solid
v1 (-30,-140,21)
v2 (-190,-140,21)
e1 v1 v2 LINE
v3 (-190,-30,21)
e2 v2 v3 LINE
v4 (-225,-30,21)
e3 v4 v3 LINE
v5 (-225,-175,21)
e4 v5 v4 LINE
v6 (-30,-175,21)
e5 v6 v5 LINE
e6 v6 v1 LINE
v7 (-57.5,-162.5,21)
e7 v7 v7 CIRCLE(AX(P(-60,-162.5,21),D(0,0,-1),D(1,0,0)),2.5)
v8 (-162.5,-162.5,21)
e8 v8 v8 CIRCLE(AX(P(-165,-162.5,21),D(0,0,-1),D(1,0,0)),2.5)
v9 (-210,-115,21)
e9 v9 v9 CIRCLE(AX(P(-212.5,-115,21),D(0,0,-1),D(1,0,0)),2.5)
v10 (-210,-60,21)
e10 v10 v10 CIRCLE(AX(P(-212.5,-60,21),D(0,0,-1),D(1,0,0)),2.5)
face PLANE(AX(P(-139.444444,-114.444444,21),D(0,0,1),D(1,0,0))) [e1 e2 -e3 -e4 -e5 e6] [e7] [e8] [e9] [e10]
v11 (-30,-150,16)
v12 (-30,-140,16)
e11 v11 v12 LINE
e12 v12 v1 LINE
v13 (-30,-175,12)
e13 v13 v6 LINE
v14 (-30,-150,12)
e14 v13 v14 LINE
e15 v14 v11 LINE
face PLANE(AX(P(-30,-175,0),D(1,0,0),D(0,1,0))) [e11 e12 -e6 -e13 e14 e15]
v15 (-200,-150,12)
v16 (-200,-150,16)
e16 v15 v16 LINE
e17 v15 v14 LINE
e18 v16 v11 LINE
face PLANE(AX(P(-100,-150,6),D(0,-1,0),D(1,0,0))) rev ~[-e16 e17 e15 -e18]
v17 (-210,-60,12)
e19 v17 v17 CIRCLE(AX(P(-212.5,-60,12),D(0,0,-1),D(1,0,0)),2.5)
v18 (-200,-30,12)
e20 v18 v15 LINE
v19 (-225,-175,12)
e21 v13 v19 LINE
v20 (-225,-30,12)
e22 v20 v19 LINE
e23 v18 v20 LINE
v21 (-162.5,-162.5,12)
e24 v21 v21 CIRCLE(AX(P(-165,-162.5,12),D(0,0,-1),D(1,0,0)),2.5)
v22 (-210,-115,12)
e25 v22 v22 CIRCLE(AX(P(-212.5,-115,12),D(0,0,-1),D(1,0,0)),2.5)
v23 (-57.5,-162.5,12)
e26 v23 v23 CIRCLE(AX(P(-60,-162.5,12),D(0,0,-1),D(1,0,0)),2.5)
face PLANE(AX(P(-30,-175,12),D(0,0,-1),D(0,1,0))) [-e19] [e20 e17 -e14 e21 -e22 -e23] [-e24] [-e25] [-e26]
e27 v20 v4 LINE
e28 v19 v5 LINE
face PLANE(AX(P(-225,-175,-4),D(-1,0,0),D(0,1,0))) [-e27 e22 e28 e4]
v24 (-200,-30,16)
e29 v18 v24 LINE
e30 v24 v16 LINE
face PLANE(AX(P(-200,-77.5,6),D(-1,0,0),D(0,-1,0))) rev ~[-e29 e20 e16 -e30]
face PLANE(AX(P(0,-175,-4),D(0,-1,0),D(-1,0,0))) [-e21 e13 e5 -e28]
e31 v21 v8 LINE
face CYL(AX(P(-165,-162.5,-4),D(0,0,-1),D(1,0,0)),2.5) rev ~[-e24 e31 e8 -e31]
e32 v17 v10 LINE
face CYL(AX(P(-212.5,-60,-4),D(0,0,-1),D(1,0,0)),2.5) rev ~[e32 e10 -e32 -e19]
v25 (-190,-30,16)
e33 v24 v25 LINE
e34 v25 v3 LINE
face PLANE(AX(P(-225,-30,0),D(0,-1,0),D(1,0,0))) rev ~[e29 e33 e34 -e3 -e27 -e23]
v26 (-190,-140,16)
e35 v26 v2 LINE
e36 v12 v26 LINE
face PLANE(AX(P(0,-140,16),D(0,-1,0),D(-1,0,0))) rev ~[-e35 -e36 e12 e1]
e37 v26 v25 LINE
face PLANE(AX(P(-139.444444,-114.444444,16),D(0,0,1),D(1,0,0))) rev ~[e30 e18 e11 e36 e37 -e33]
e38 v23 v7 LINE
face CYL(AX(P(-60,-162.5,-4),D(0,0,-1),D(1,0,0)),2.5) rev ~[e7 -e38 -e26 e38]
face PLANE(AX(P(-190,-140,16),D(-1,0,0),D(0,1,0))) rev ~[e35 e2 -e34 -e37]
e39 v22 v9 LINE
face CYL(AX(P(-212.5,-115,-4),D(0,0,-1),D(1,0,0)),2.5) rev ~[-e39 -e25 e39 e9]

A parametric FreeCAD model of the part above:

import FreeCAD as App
import Part
import Sketcher
Q = App.Units.Quantity


def add_polygon(sketch, points):
    """Adds a closed chain of lines whose ends are joined by coincident constraints."""
    first, n = sketch.GeometryCount, len(points)
    for a, b in zip(points, points[1:] + points[:1]):
        sketch.addGeometry(Part.LineSegment(App.Vector(*a, 0), App.Vector(*b, 0)), False)
    for i in range(n):
        sketch.addConstraint(Sketcher.Constraint("Coincident", first + i, 2, first + (i + 1) % n, 1))

doc = App.newDocument("Part")
params = doc.addObject("Spreadsheet::Sheet", "Params")
for row, (alias, value) in enumerate([
    ("sketch1_width", "24 mm"),
    ("sketch1_height", "150 mm"),
    ("pad1_length", "12 mm"),
    ("sketch2_width", "200 mm"),
    ("sketch2_height", "20 mm"),
    ("pad2_length", "5 mm"),
    ("sketch3_width", "155 mm"),
    ("sketch3_height", "20 mm"),
    ("pad3_length", "5 mm"),
    ("sketch4_diameter", "5 mm"),
    ("sketch4_width", "225 mm"),
    ("sketch4_width2", "20 mm"),
    ("sketch4_height", "175 mm"),
    ("pad4_length", "25 mm"),
    ("sketch5_width", "15 mm"),
    ("sketch5_width2", "205 mm"),
    ("sketch5_height", "155 mm"),
    ("pad5_length", "5 mm"),
    ("sketch6_width", "195 mm"),
    ("sketch6_width2", "30 mm"),
    ("sketch6_height", "145 mm"),
    ("pocket1_length", "50 mm"),
    ("sketch7_width", "145 mm"),
    ("sketch7_height", "16 mm"),
], start=1):
    params.set(f"A{row}", alias)
    params.set(f"B{row}", "=" + value)
    params.setAlias(f"B{row}", alias)

body = doc.addObject("PartDesign::Body", "Body")

sketch1 = body.newObject("Sketcher::SketchObject", "Sketch")
sketch1.AttachmentSupport = (doc.getObject("XY_Plane"), [""])
sketch1.MapMode = "FlatFace"
sketch1.addGeometry(Part.BSplineCurve([App.Vector(-176, 0, 0), App.Vector(-176, -130, 0), App.Vector(0, -130, 0)], [3, 3], [3.141592654, 4.71238898], False, 2, [1, 0.707106781, 1], False), False)
sketch1.addGeometry(Part.LineSegment(App.Vector(-176, 0, 0), App.Vector(-200, 0, 0)), False)
sketch1.addGeometry(Part.LineSegment(App.Vector(-200, 0, 0), App.Vector(-200, -150, 0)), False)
sketch1.addGeometry(Part.LineSegment(App.Vector(-200, -150, 0), App.Vector(0, -150, 0)), False)
sketch1.addGeometry(Part.LineSegment(App.Vector(0, -150, 0), App.Vector(0, -130, 0)), False)
sketch1.addConstraint(Sketcher.Constraint("Block", 0))
sketch1.addConstraint(Sketcher.Constraint("Coincident", 0, 1, 1, 1))
sketch1.addConstraint(Sketcher.Constraint("Coincident", 1, 2, 2, 1))
sketch1.addConstraint(Sketcher.Constraint("Coincident", 2, 2, 3, 1))
sketch1.addConstraint(Sketcher.Constraint("Coincident", 3, 2, 4, 1))
sketch1.addConstraint(Sketcher.Constraint("Coincident", 4, 2, 0, 2))
sketch1.addConstraint(Sketcher.Constraint("Horizontal", 1))
sketch1.addConstraint(Sketcher.Constraint("Vertical", 2))
sketch1.addConstraint(Sketcher.Constraint("Horizontal", 3))
sketch1.addConstraint(Sketcher.Constraint("Vertical", 4))
sketch1.addConstraint(Sketcher.Constraint("DistanceX", 1, 2, 1, 1, Q("24 mm")))
sketch1.addConstraint(Sketcher.Constraint("DistanceY", 2, 2, 2, 1, Q("150 mm")))
sketch1.setExpression("Constraints[10]", "Params.sketch1_width")
sketch1.setExpression("Constraints[11]", "Params.sketch1_height")
pad1 = body.newObject("PartDesign::Pad", "Pad")
pad1.Profile = sketch1
pad1.setExpression("Length", "Params.pad1_length")

sketch2 = body.newObject("Sketcher::SketchObject", "Sketch001")
sketch2.AttachmentSupport = (doc.getObject("XZ_Plane"), [""])
sketch2.MapMode = "FlatFace"
sketch2.AttachmentOffset = App.Placement(App.Vector(0, 0, 150), App.Rotation())
add_polygon(sketch2, [(-200, 16), (-200, -4), (0, -4), (0, 16)])
sketch2.addConstraint(Sketcher.Constraint("Vertical", 0))
sketch2.addConstraint(Sketcher.Constraint("Horizontal", 1))
sketch2.addConstraint(Sketcher.Constraint("Vertical", 2))
sketch2.addConstraint(Sketcher.Constraint("Horizontal", 3))
sketch2.addConstraint(Sketcher.Constraint("PointOnObject", 1, 2, -2))
sketch2.addConstraint(Sketcher.Constraint("DistanceX", 1, 1, 1, 2, Q("200 mm")))
sketch2.addConstraint(Sketcher.Constraint("DistanceY", 0, 2, 0, 1, Q("20 mm")))
sketch2.addConstraint(Sketcher.Constraint("DistanceY", 0, 2, -1, 1, Q("4 mm")))
sketch2.setExpression("Constraints[9]", "Params.sketch2_width")
sketch2.setExpression("Constraints[10]", "Params.sketch2_height")
pad2 = body.newObject("PartDesign::Pad", "Pad001")
pad2.Profile = sketch2
pad2.setExpression("Length", "Params.pad2_length")

sketch3 = body.newObject("Sketcher::SketchObject", "Sketch002")
sketch3.AttachmentSupport = (doc.getObject("YZ_Plane"), [""])
sketch3.MapMode = "FlatFace"
sketch3.AttachmentOffset = App.Placement(App.Vector(0, 0, -200), App.Rotation())
add_polygon(sketch3, [(0, 16), (0, -4), (-155, -4), (-155, 16)])
sketch3.addConstraint(Sketcher.Constraint("Vertical", 0))
sketch3.addConstraint(Sketcher.Constraint("Horizontal", 1))
sketch3.addConstraint(Sketcher.Constraint("Vertical", 2))
sketch3.addConstraint(Sketcher.Constraint("Horizontal", 3))
sketch3.addConstraint(Sketcher.Constraint("PointOnObject", 0, 2, -2))
sketch3.addConstraint(Sketcher.Constraint("DistanceX", 1, 2, 1, 1, Q("155 mm")))
sketch3.addConstraint(Sketcher.Constraint("DistanceY", 0, 2, 0, 1, Q("20 mm")))
sketch3.addConstraint(Sketcher.Constraint("DistanceY", 0, 2, -1, 1, Q("4 mm")))
sketch3.setExpression("Constraints[9]", "Params.sketch3_width")
sketch3.setExpression("Constraints[10]", "Params.sketch3_height")
pad3 = body.newObject("PartDesign::Pad", "Pad002")
pad3.Profile = sketch3
pad3.setExpression("Length", "Params.pad3_length")
pad3.Reversed = True

sketch4 = body.newObject("Sketcher::SketchObject", "Sketch003")
sketch4.AttachmentSupport = (doc.getObject("XY_Plane"), [""])
sketch4.MapMode = "FlatFace"
sketch4.AttachmentOffset = App.Placement(App.Vector(0, 0, -4), App.Rotation())
add_polygon(sketch4, [(0, -155), (0, -175), (-225, -175), (-225, 0), (-205, 0), (-205, -155)])
sketch4.addGeometry(Part.Circle(App.Vector(-212.5, -60, 0), App.Vector(0, 0, 1), 2.5), False)
sketch4.addGeometry(Part.Circle(App.Vector(-212.5, -115, 0), App.Vector(0, 0, 1), 2.5), False)
sketch4.addGeometry(Part.Circle(App.Vector(-165, -162.5, 0), App.Vector(0, 0, 1), 2.5), False)
sketch4.addGeometry(Part.Circle(App.Vector(-60, -162.5, 0), App.Vector(0, 0, 1), 2.5), False)
sketch4.addConstraint(Sketcher.Constraint("Vertical", 0))
sketch4.addConstraint(Sketcher.Constraint("Horizontal", 1))
sketch4.addConstraint(Sketcher.Constraint("Vertical", 2))
sketch4.addConstraint(Sketcher.Constraint("Horizontal", 3))
sketch4.addConstraint(Sketcher.Constraint("Vertical", 4))
sketch4.addConstraint(Sketcher.Constraint("Horizontal", 5))
sketch4.addConstraint(Sketcher.Constraint("Equal", 6, 7))
sketch4.addConstraint(Sketcher.Constraint("Equal", 7, 8))
sketch4.addConstraint(Sketcher.Constraint("Equal", 8, 9))
sketch4.addConstraint(Sketcher.Constraint("PointOnObject", 0, 2, -2))
sketch4.addConstraint(Sketcher.Constraint("PointOnObject", 2, 2, -1))
sketch4.addConstraint(Sketcher.Constraint("Horizontal", 8, 3, 9, 3))
sketch4.addConstraint(Sketcher.Constraint("Vertical", 6, 3, 7, 3))
sketch4.addConstraint(Sketcher.Constraint("Equal", 3, 0))
sketch4.addConstraint(Sketcher.Constraint("Diameter", 6, Q("5 mm")))
sketch4.addConstraint(Sketcher.Constraint("DistanceX", 1, 2, 1, 1, Q("225 mm")))
sketch4.addConstraint(Sketcher.Constraint("DistanceX", 3, 1, 3, 2, Q("20 mm")))
sketch4.addConstraint(Sketcher.Constraint("DistanceY", 2, 1, 2, 2, Q("175 mm")))
sketch4.addConstraint(Sketcher.Constraint("DistanceY", 6, 3, -1, 1, Q("60 mm")))
sketch4.addConstraint(Sketcher.Constraint("DistanceY", 7, 3, -1, 1, Q("115 mm")))
sketch4.addConstraint(Sketcher.Constraint("DistanceX", 8, 3, -1, 1, Q("165 mm")))
sketch4.addConstraint(Sketcher.Constraint("DistanceX", 9, 3, -1, 1, Q("60 mm")))
sketch4.addConstraint(Sketcher.Constraint("DistanceX", 6, 3, -1, 1, Q("212.5 mm")))
sketch4.addConstraint(Sketcher.Constraint("DistanceY", 8, 3, -1, 1, Q("162.5 mm")))
sketch4.setExpression("Constraints[20]", "Params.sketch4_diameter")
sketch4.setExpression("Constraints[21]", "Params.sketch4_width")
sketch4.setExpression("Constraints[22]", "Params.sketch4_width2")
sketch4.setExpression("Constraints[23]", "Params.sketch4_height")
pad4 = body.newObject("PartDesign::Pad", "Pad003")
pad4.Profile = sketch4
pad4.setExpression("Length", "Params.pad4_length")

sketch5 = body.newObject("Sketcher::SketchObject", "Sketch004")
sketch5.AttachmentSupport = (doc.getObject("XY_Plane"), [""])
sketch5.MapMode = "FlatFace"
sketch5.AttachmentOffset = App.Placement(App.Vector(0, 0, 16), App.Rotation())
add_polygon(sketch5, [(-190, 0), (-205, 0), (-205, -155), (0, -155), (0, -140), (-190, -140)])
sketch5.addConstraint(Sketcher.Constraint("Horizontal", 0))
sketch5.addConstraint(Sketcher.Constraint("Vertical", 1))
sketch5.addConstraint(Sketcher.Constraint("Horizontal", 2))
sketch5.addConstraint(Sketcher.Constraint("Vertical", 3))
sketch5.addConstraint(Sketcher.Constraint("Horizontal", 4))
sketch5.addConstraint(Sketcher.Constraint("Vertical", 5))
sketch5.addConstraint(Sketcher.Constraint("PointOnObject", 0, 2, -1))
sketch5.addConstraint(Sketcher.Constraint("PointOnObject", 2, 2, -2))
sketch5.addConstraint(Sketcher.Constraint("Equal", 0, 3))
sketch5.addConstraint(Sketcher.Constraint("DistanceX", 0, 2, 0, 1, Q("15 mm")))
sketch5.addConstraint(Sketcher.Constraint("DistanceX", 2, 1, 2, 2, Q("205 mm")))
sketch5.addConstraint(Sketcher.Constraint("DistanceY", 1, 2, 1, 1, Q("155 mm")))
sketch5.setExpression("Constraints[15]", "Params.sketch5_width")
sketch5.setExpression("Constraints[16]", "Params.sketch5_width2")
sketch5.setExpression("Constraints[17]", "Params.sketch5_height")
pad5 = body.newObject("PartDesign::Pad", "Pad004")
pad5.Profile = sketch5
pad5.setExpression("Length", "Params.pad5_length")

sketch6 = body.newObject("Sketcher::SketchObject", "Sketch005")
sketch6.AttachmentSupport = (doc.getObject("XY_Plane"), [""])
sketch6.MapMode = "FlatFace"
add_polygon(sketch6, [(-225, 0), (-225, -30), (-30, -30), (-30, -175), (0, -175), (0, 0)])
sketch6.addConstraint(Sketcher.Constraint("Vertical", 0))
sketch6.addConstraint(Sketcher.Constraint("Horizontal", 1))
sketch6.addConstraint(Sketcher.Constraint("Vertical", 2))
sketch6.addConstraint(Sketcher.Constraint("Horizontal", 3))
sketch6.addConstraint(Sketcher.Constraint("Vertical", 4))
sketch6.addConstraint(Sketcher.Constraint("Horizontal", 5))
sketch6.addConstraint(Sketcher.Constraint("Coincident", 4, 2, -1, 1))
sketch6.addConstraint(Sketcher.Constraint("Equal", 3, 0))
sketch6.addConstraint(Sketcher.Constraint("DistanceX", 1, 1, 1, 2, Q("195 mm")))
sketch6.addConstraint(Sketcher.Constraint("DistanceX", 3, 1, 3, 2, Q("30 mm")))
sketch6.addConstraint(Sketcher.Constraint("DistanceY", 2, 2, 2, 1, Q("145 mm")))
sketch6.setExpression("Constraints[14]", "Params.sketch6_width")
sketch6.setExpression("Constraints[15]", "Params.sketch6_width2")
sketch6.setExpression("Constraints[16]", "Params.sketch6_height")
pocket1 = body.newObject("PartDesign::Pocket", "Pocket")
pocket1.Profile = sketch6
pocket1.setExpression("Length", "Params.pocket1_length")
pocket1.Midplane = True

sketch7 = body.newObject("Sketcher::SketchObject", "Sketch006")
sketch7.AttachmentSupport = (doc.getObject("YZ_Plane"), [""])
sketch7.MapMode = "FlatFace"
sketch7.AttachmentOffset = App.Placement(App.Vector(0, 0, -30), App.Rotation())
add_polygon(sketch7, [(-175, 12), (-175, -4), (-30, -4), (-30, 12)])
sketch7.addConstraint(Sketcher.Constraint("Vertical", 0))
sketch7.addConstraint(Sketcher.Constraint("Horizontal", 1))
sketch7.addConstraint(Sketcher.Constraint("Vertical", 2))
sketch7.addConstraint(Sketcher.Constraint("Horizontal", 3))
sketch7.addConstraint(Sketcher.Constraint("DistanceX", 1, 1, 1, 2, Q("145 mm")))
sketch7.addConstraint(Sketcher.Constraint("DistanceY", 0, 2, 0, 1, Q("16 mm")))
sketch7.addConstraint(Sketcher.Constraint("DistanceX", 0, 2, -1, 1, Q("175 mm")))
sketch7.addConstraint(Sketcher.Constraint("DistanceY", 0, 2, -1, 1, Q("4 mm")))
sketch7.setExpression("Constraints[8]", "Params.sketch7_width")
sketch7.setExpression("Constraints[9]", "Params.sketch7_height")
pocket2 = body.newObject("PartDesign::Pocket", "Pocket001")
pocket2.Profile = sketch7
pocket2.Type = "ThroughAll"

doc.recompute()
